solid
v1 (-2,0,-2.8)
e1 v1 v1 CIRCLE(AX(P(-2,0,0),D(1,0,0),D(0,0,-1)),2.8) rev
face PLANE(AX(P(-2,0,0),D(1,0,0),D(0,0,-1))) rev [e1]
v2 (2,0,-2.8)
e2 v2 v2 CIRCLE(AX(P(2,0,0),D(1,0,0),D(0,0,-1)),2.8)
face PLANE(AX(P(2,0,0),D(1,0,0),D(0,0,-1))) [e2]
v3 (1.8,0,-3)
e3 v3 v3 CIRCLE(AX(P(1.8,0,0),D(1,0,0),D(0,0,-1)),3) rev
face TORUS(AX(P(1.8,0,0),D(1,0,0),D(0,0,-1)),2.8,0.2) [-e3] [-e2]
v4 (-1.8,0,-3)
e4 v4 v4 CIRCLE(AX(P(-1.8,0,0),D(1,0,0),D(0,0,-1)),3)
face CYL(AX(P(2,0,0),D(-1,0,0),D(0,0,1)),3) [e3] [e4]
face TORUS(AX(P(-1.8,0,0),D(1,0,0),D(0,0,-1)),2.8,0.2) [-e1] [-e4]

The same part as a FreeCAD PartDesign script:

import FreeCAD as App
import Part
import Sketcher

V = App.Vector
Q = App.Units.Quantity


def edges_at(feature, points):
    """Names of the edges that pass closest to the given points."""
    edges = feature.Shape.Edges
    near = lambda p: min(range(len(edges)), key=lambda i: edges[i].distToShape(Part.Vertex(*p))[0])
    return sorted({f"Edge{near(p) + 1}" for p in points})

doc = App.newDocument("Part")
body = doc.addObject("PartDesign::Body", "Body")

# Sketch on YZ plane
sketch1 = body.newObject("Sketcher::SketchObject", "Sketch")
sketch1.AttachmentSupport = (doc.getObject("YZ_Plane"), [""])
sketch1.MapMode = "FlatFace"
sketch1.addGeometry(Part.Circle(V(0, 0, 0), V(0, 0, 1), 3), False)
sketch1.addConstraint([
    Sketcher.Constraint("Coincident", 0, 3, -1, 1),
    Sketcher.Constraint("Diameter", 0, Q("6 mm")),
])
pad1 = body.newObject("PartDesign::Pad", "Pad")
pad1.Profile = sketch1
pad1.Length = 4
pad1.Midplane = True
doc.recompute()

fillet = body.newObject("PartDesign::Fillet", "Fillet")
fillet.Base = (pad1, edges_at(pad1, [(-2, 0, 3), (2, 0, 3)]))
fillet.Radius = 0.2

doc.recompute()
